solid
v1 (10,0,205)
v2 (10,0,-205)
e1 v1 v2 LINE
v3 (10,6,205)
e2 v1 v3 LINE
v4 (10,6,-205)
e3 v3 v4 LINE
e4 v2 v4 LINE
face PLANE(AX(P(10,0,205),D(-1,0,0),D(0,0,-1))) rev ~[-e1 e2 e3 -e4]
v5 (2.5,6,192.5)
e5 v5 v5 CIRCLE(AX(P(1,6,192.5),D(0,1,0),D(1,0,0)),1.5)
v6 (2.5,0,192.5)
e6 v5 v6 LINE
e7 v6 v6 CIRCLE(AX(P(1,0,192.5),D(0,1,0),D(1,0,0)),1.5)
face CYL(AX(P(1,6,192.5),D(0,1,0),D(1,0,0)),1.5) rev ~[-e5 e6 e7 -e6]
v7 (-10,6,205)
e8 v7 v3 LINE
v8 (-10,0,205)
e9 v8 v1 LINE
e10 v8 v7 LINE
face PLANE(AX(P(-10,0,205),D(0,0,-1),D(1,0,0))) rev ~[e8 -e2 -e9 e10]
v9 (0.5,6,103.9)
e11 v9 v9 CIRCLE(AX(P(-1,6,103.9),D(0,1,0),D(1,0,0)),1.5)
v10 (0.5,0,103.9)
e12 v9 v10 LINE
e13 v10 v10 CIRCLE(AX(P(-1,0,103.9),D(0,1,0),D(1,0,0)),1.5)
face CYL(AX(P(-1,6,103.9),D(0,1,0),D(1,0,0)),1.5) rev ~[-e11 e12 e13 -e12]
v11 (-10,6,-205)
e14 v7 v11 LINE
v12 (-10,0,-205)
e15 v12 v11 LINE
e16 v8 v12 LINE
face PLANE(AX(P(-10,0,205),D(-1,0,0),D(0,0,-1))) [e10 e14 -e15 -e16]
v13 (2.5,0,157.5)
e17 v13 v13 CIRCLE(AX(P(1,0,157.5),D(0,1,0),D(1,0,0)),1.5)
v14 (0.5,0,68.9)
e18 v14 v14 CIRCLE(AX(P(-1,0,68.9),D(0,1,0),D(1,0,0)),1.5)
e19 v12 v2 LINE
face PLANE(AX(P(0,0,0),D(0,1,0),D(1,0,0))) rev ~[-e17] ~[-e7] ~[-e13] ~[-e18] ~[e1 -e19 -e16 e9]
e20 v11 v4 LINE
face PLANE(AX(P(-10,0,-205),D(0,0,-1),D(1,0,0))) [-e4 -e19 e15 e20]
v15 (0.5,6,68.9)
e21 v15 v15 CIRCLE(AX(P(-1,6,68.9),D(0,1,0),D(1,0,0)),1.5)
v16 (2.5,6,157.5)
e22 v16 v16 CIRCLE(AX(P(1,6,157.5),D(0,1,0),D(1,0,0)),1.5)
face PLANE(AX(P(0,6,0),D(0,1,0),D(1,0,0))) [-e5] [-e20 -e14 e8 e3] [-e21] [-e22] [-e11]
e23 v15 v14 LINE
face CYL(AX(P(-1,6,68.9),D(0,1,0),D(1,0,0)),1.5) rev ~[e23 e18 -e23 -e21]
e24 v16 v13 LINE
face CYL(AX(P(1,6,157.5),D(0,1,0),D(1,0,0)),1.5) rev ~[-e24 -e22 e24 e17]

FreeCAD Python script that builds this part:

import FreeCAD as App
import Part
import Sketcher

doc = App.newDocument("Part")
params = doc.addObject("Spreadsheet::Sheet", "Params")
for row, (alias, value) in enumerate([
    ("sketch1_width", "20 mm"),
    ("sketch1_height", "410 mm"),
    ("pad1_length", "6 mm"),
    ("sketch2_diameter", "3 mm"),
], start=1):
    params.set(f"A{row}", alias)
    params.set(f"B{row}", "=" + value)
    params.setAlias(f"B{row}", alias)

body = doc.addObject("PartDesign::Body", "Body")

sketch1 = doc.addObject("Sketcher::SketchObject", "Sketch")
body.addObject(sketch1)
sketch1.AttachmentSupport = (doc.XZ_Plane, [""])
sketch1.MapMode = "FlatFace"
sketch1.addGeometry([
    Part.LineSegment(App.Vector(-10, -205, 0), App.Vector(-10, 205, 0)),
    Part.LineSegment(App.Vector(-10, 205, 0), App.Vector(10, 205, 0)),
    Part.LineSegment(App.Vector(10, 205, 0), App.Vector(10, -205, 0)),
    Part.LineSegment(App.Vector(10, -205, 0), App.Vector(-10, -205, 0)),
], False)
sketch1.addConstraint([
    Sketcher.Constraint("Coincident", 0, 2, 1, 1),
    Sketcher.Constraint("Coincident", 1, 2, 2, 1),
    Sketcher.Constraint("Coincident", 2, 2, 3, 1),
    Sketcher.Constraint("Coincident", 3, 2, 0, 1),
    Sketcher.Constraint("Vertical", 0),
    Sketcher.Constraint("Horizontal", 1),
    Sketcher.Constraint("Vertical", 2),
    Sketcher.Constraint("Horizontal", 3),
    Sketcher.Constraint("Symmetric", 0, 2, 2, 2, -1, 1),
    Sketcher.Constraint("DistanceX", 1, 1, 1, 2, 20.0),
    Sketcher.Constraint("DistanceY", 0, 1, 0, 2, 410.0),
])
sketch1.setExpression("Constraints[9]", "Params.sketch1_width")
sketch1.setExpression("Constraints[10]", "Params.sketch1_height")
pad1 = doc.addObject("PartDesign::Pad", "Pad")
body.addObject(pad1)
pad1.Profile = sketch1
pad1.setExpression("Length", "Params.pad1_length")
pad1.Reversed = True

sketch2 = doc.addObject("Sketcher::SketchObject", "Sketch001")
body.addObject(sketch2)
sketch2.AttachmentSupport = (doc.XZ_Plane, [""])
sketch2.MapMode = "FlatFace"
sketch2.AttachmentOffset = App.Placement(App.Vector(0, 0, -6), App.Rotation())
sketch2.addGeometry([
    Part.Circle(App.Vector(1, 192.5, 0), App.Vector(0, 0, 1), 1.5),
    Part.Circle(App.Vector(1, 157.5, 0), App.Vector(0, 0, 1), 1.5),
    Part.Circle(App.Vector(-1, 103.9, 0), App.Vector(0, 0, 1), 1.5),
    Part.Circle(App.Vector(-1, 68.9, 0), App.Vector(0, 0, 1), 1.5),
], False)
sketch2.addConstraint([
    Sketcher.Constraint("Equal", 0, 1),
    Sketcher.Constraint("Equal", 1, 2),
    Sketcher.Constraint("Equal", 2, 3),
    Sketcher.Constraint("Vertical", 0, 3, 1, 3),
    Sketcher.Constraint("Vertical", 2, 3, 3, 3),
    Sketcher.Constraint("Diameter", 0, 3.0),
    Sketcher.Constraint("DistanceX", -1, 1, 0, 3, 1.0),
    Sketcher.Constraint("DistanceX", 2, 3, -1, 1, 1.0),
    Sketcher.Constraint("DistanceY", 1, 3, 0, 3, 35.0),
    Sketcher.Constraint("DistanceY", 3, 3, 2, 3, 35.0),
    Sketcher.Constraint("DistanceY", -1, 1, 0, 3, 192.5),
    Sketcher.Constraint("DistanceY", -1, 1, 2, 3, 103.9),
])
sketch2.setExpression("Constraints[5]", "Params.sketch2_diameter")
pocket1 = doc.addObject("PartDesign::Pocket", "Pocket")
body.addObject(pocket1)
pocket1.Profile = sketch2
pocket1.Type = "ThroughAll"
pocket1.Reversed = True

doc.recompute()
